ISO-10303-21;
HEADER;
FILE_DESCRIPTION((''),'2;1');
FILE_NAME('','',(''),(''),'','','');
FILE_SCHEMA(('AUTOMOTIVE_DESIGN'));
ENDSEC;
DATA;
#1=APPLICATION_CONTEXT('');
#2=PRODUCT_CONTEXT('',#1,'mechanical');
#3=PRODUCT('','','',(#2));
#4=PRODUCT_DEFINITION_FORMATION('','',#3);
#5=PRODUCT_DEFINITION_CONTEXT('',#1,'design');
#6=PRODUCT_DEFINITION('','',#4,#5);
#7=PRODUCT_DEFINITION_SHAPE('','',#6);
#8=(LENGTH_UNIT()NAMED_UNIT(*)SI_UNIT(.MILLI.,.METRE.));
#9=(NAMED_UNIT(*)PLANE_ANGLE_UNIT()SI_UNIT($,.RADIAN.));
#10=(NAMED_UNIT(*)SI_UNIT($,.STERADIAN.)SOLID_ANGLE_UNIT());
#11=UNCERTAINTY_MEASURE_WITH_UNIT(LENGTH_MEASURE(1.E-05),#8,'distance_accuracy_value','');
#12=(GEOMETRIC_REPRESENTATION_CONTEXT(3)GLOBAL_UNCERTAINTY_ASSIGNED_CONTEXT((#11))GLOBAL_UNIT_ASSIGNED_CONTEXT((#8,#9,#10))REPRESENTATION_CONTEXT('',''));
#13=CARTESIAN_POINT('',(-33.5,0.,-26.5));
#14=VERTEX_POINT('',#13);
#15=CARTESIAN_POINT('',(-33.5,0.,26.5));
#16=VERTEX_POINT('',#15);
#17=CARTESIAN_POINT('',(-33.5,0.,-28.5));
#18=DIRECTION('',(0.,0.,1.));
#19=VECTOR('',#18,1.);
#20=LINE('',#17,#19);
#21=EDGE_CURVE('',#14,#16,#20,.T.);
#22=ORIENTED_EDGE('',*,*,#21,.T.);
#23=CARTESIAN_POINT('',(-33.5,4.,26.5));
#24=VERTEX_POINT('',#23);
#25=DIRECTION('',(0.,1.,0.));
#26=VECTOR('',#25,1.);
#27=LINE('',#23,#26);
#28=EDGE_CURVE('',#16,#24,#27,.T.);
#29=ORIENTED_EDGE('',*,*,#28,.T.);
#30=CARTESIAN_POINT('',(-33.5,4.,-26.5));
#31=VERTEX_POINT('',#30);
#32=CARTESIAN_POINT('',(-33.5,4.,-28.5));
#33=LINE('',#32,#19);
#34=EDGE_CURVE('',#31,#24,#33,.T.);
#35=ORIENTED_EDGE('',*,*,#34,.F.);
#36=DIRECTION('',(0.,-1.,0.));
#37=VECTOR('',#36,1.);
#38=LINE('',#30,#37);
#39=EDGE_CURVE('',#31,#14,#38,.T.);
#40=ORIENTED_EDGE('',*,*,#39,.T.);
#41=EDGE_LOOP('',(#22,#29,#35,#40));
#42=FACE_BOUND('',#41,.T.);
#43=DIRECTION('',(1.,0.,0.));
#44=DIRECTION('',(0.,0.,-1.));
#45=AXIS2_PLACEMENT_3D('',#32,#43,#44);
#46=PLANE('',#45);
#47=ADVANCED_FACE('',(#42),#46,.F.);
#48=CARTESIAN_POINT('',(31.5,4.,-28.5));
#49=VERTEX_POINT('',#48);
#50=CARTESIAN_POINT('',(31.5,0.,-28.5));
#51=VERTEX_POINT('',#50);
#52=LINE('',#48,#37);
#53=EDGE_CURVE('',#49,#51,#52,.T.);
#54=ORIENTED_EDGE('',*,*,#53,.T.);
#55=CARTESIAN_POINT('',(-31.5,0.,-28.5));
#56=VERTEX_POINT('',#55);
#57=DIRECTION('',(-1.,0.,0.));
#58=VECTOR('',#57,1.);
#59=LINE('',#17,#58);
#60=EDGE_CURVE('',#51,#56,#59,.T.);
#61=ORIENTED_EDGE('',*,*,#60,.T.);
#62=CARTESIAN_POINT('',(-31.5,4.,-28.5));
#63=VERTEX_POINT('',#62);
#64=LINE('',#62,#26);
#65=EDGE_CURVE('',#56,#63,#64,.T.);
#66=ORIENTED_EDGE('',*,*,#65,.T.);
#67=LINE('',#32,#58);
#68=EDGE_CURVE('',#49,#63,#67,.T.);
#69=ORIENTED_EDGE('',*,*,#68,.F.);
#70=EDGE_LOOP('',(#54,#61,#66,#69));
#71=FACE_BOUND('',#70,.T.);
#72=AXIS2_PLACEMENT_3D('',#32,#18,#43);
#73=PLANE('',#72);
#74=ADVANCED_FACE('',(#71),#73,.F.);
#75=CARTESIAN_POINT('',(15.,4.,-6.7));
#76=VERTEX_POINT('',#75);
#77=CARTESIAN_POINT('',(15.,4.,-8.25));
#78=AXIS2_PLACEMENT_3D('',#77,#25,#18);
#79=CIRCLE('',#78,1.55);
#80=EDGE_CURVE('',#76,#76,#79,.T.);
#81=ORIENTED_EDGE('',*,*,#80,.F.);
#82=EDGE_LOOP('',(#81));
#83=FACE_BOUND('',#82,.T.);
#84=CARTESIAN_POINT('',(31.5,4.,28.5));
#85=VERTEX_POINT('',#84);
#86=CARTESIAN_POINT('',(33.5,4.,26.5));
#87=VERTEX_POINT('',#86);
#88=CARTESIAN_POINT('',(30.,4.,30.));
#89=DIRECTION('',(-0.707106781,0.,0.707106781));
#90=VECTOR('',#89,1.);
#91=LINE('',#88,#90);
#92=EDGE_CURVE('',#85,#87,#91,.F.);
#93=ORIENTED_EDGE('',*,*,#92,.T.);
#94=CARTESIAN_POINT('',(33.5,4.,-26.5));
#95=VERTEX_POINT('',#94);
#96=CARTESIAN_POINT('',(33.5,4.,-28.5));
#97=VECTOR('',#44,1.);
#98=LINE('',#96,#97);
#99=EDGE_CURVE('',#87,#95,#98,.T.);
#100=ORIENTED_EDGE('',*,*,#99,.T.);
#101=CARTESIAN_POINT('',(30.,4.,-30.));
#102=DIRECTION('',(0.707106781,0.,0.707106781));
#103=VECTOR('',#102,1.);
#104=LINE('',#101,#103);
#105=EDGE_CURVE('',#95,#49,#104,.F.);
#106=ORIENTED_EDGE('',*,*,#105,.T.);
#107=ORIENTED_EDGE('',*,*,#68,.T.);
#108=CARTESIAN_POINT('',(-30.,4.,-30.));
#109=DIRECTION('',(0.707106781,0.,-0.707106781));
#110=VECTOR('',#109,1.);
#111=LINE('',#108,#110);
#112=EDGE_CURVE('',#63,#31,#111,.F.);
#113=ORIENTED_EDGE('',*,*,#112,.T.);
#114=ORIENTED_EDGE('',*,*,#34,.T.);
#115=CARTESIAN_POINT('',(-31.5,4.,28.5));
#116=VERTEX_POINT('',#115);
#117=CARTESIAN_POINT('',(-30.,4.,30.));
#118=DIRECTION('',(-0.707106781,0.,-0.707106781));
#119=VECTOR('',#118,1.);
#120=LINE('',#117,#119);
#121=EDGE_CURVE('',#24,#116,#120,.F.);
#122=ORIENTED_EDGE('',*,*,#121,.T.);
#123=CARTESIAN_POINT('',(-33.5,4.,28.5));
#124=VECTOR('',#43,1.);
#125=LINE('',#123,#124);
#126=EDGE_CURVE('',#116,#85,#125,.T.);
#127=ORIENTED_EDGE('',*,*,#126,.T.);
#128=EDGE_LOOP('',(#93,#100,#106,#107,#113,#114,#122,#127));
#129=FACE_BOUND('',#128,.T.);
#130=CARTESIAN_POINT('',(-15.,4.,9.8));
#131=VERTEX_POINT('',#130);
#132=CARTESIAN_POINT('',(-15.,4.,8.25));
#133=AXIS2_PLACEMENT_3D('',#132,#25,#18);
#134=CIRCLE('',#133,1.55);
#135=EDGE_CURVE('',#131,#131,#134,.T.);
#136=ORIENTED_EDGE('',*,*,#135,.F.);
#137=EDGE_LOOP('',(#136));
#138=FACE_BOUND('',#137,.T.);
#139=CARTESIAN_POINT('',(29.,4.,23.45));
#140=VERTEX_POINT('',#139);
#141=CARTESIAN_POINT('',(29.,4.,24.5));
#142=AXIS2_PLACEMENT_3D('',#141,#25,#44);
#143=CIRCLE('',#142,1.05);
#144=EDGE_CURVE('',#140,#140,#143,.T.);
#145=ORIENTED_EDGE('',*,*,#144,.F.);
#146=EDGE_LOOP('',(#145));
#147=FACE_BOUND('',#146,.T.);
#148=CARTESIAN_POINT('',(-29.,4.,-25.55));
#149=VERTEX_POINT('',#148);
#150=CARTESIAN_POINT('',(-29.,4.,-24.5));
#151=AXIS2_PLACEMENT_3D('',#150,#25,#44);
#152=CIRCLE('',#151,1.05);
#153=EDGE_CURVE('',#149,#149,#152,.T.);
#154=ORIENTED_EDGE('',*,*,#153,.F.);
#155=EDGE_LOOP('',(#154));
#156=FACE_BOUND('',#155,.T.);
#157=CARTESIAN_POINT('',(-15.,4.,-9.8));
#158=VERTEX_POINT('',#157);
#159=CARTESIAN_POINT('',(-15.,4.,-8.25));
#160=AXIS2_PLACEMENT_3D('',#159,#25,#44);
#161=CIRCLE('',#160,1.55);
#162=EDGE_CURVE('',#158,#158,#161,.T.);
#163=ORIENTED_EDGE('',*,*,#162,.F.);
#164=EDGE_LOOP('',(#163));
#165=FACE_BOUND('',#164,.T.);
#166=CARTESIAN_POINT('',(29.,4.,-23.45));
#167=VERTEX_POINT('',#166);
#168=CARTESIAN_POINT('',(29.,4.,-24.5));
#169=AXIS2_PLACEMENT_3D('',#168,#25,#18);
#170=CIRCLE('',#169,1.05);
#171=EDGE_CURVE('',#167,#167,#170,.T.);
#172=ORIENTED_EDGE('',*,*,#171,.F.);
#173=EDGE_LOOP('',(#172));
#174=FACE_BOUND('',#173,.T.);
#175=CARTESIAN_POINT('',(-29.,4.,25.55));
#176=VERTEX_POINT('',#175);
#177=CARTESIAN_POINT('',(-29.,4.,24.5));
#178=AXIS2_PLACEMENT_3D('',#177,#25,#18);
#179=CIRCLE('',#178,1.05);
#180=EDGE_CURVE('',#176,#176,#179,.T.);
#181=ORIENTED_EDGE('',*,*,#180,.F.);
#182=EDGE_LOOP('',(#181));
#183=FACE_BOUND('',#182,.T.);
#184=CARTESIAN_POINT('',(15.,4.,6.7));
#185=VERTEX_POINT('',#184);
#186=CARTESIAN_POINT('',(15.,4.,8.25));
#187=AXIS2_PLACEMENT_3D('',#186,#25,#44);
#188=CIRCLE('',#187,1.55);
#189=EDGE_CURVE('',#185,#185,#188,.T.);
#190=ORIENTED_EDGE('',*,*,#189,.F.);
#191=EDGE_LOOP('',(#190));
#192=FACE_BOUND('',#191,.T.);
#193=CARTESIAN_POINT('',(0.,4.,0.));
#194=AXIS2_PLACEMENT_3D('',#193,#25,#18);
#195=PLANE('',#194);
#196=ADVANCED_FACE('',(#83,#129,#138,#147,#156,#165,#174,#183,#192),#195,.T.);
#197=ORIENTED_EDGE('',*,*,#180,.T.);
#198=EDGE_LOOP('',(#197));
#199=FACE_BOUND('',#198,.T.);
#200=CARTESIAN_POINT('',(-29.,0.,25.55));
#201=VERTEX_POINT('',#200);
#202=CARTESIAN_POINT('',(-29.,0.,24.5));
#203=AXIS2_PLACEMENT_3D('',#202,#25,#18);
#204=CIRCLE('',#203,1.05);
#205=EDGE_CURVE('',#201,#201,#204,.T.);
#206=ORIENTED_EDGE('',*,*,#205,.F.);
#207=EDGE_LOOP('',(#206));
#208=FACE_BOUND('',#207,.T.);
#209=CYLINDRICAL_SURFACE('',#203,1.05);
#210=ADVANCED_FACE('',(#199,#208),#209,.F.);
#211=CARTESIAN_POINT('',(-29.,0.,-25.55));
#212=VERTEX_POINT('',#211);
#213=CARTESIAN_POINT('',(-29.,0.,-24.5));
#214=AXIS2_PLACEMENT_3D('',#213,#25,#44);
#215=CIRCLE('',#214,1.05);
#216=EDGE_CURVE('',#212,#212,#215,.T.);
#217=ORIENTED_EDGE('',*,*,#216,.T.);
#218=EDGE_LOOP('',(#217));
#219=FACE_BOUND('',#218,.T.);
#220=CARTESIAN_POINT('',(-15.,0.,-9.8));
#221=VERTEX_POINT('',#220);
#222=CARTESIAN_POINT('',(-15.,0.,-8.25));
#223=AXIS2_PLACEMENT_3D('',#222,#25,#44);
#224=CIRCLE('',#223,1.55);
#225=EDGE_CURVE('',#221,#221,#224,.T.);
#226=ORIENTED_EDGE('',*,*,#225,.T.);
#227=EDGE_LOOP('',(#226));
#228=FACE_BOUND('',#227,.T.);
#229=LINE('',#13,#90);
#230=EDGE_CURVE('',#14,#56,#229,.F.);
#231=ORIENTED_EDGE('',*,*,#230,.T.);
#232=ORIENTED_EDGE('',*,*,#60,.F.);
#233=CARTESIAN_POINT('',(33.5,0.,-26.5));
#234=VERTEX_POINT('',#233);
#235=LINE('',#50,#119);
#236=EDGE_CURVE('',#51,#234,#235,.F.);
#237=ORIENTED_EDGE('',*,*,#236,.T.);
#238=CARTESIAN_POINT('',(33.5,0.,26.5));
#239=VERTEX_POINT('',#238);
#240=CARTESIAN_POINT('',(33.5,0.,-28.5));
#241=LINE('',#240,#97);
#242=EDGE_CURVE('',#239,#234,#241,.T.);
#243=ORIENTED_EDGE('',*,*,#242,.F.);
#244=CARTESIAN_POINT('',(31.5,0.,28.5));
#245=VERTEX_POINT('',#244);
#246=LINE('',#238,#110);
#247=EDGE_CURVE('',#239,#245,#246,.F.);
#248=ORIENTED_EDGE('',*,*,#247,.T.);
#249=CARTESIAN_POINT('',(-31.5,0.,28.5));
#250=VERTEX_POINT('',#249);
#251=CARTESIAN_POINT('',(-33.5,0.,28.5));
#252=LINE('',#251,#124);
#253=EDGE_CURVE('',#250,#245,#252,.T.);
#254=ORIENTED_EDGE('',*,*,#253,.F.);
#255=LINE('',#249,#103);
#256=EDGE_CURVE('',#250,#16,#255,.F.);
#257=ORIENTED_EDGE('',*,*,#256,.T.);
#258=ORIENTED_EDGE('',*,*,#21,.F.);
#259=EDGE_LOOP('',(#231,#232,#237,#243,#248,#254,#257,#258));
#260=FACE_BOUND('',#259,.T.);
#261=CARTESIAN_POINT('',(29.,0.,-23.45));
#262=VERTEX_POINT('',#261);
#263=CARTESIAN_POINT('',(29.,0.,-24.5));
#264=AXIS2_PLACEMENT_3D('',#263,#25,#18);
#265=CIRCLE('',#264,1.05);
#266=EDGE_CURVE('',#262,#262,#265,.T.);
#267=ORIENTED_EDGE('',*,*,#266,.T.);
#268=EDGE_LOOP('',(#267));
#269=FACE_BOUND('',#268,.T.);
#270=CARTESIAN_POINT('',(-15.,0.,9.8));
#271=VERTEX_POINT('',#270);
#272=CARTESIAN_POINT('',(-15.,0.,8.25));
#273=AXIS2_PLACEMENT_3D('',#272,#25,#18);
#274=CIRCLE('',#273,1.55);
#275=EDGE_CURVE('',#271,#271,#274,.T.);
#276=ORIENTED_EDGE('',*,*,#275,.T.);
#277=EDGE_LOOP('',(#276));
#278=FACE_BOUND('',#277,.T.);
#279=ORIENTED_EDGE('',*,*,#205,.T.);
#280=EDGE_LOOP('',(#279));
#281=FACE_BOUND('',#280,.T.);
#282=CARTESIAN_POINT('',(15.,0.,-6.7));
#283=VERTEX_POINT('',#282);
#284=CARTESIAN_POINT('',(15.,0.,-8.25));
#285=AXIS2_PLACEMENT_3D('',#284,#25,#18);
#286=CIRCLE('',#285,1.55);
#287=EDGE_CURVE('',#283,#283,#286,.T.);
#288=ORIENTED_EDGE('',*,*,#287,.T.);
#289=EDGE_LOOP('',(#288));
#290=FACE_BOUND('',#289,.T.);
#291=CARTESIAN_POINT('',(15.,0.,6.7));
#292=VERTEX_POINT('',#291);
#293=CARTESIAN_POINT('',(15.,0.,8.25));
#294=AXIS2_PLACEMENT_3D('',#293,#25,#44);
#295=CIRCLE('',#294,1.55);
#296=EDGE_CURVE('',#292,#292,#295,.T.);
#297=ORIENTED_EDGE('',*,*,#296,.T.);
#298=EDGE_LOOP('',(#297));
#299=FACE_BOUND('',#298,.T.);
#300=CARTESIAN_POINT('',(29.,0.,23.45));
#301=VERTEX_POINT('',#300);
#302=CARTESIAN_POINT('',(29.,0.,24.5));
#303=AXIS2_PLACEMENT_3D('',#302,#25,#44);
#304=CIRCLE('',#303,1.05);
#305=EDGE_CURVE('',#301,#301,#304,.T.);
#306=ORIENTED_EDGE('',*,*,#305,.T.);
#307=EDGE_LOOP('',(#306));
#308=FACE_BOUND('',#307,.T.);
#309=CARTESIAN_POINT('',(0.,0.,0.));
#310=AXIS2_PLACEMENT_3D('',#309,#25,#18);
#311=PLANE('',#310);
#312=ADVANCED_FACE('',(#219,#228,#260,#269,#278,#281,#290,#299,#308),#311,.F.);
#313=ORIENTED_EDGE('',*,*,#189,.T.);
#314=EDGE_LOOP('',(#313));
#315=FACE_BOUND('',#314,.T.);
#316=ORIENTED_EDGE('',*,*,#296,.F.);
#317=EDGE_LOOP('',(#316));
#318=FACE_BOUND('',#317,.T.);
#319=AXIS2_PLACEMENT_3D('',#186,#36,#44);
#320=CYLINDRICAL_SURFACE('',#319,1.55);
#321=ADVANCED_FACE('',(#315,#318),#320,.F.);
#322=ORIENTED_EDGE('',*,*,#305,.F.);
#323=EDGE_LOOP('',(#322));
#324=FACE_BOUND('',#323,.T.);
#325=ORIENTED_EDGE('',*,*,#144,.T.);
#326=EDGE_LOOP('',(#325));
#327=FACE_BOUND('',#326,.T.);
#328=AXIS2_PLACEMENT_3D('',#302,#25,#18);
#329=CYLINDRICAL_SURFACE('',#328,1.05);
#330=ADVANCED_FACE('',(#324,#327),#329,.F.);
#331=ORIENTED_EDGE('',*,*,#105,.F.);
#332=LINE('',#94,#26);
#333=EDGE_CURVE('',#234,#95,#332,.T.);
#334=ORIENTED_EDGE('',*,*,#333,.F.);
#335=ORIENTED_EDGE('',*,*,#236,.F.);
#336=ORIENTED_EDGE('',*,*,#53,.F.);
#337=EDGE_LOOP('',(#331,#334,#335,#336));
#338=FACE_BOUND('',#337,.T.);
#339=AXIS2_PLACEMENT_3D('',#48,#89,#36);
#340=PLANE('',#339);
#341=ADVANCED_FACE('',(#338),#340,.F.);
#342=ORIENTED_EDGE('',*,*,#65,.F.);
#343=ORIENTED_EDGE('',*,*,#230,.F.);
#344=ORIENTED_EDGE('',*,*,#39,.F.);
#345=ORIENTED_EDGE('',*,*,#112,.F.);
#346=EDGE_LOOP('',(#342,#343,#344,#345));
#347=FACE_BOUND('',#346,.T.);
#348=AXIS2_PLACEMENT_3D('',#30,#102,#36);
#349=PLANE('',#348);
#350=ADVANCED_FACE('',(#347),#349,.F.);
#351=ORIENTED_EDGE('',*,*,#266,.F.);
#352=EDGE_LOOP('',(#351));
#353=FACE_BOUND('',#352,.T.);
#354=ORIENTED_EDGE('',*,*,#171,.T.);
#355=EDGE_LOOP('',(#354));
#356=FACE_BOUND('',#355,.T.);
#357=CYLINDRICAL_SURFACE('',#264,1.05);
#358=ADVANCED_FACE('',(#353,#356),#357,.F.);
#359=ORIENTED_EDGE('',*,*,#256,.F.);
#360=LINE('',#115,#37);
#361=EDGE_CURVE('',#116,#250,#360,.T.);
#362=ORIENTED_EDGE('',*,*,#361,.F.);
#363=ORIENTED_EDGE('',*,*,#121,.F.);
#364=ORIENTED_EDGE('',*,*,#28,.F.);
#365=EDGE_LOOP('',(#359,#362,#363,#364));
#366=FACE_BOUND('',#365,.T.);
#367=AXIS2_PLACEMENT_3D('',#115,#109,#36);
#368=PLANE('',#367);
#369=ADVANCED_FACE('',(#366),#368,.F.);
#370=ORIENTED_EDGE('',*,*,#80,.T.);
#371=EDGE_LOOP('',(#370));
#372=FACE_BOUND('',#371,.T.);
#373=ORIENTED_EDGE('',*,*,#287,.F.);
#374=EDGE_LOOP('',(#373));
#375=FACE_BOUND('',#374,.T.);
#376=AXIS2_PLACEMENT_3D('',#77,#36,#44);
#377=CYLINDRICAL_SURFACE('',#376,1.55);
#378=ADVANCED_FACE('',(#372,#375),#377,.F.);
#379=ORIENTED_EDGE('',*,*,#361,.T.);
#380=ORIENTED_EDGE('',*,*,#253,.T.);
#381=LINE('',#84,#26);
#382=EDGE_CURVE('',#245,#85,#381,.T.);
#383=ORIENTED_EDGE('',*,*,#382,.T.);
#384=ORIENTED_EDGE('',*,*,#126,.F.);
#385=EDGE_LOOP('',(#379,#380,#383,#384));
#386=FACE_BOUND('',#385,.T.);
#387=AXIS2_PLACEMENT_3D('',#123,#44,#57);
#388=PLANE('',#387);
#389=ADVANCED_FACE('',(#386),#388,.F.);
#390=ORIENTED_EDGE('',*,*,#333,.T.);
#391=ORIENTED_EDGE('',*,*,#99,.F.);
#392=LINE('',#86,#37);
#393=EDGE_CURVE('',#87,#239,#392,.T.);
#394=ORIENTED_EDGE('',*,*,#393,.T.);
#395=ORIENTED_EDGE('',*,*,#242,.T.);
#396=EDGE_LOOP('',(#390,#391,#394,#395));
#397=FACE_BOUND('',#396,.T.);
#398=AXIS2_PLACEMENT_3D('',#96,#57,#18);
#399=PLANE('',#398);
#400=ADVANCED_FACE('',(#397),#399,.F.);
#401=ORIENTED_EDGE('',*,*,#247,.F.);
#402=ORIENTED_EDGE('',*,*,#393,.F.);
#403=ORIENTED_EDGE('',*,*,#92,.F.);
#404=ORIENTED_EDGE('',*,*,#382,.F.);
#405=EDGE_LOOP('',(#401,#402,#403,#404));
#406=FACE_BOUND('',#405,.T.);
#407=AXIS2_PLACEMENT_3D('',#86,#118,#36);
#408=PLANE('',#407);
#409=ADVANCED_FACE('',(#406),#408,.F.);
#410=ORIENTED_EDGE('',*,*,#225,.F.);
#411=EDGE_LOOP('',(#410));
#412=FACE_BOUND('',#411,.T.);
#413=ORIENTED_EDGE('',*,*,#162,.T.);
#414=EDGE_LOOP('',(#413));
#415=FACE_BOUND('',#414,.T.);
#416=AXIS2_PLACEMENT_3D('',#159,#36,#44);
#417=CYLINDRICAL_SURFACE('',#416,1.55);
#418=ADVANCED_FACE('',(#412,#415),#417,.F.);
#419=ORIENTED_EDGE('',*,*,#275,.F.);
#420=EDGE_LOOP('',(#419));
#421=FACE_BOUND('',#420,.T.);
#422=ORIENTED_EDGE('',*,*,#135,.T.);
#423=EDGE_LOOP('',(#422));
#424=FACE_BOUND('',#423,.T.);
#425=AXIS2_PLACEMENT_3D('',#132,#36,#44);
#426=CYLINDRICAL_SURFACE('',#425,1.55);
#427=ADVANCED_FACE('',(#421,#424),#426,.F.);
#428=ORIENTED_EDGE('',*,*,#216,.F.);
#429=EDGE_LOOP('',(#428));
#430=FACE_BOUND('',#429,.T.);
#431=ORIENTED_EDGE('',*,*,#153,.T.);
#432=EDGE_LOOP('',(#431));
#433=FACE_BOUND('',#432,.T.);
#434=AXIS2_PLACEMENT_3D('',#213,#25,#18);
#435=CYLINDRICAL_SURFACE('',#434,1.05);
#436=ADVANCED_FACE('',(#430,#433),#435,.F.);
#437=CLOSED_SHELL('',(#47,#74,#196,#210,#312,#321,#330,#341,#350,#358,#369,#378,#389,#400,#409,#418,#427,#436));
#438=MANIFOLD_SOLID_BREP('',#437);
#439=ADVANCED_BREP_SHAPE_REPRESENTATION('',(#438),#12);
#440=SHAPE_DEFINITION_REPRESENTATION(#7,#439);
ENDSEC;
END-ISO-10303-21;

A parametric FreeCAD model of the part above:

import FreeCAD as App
import Part
import Sketcher

V = App.Vector


def edges_at(feature, points):
    """Names of the edges that pass closest to the given points."""
    edges = feature.Shape.Edges
    near = lambda p: min(range(len(edges)), key=lambda i: edges[i].distToShape(Part.Vertex(*p))[0])
    return sorted({f"Edge{near(p) + 1}" for p in points})


def add_polygon(sketch, points):
    """Adds a closed chain of lines whose ends are joined by coincident constraints."""
    first, n = sketch.GeometryCount, len(points)
    for a, b in zip(points, points[1:] + points[:1]):
        sketch.addGeometry(Part.LineSegment(App.Vector(*a, 0), App.Vector(*b, 0)), False)
    for i in range(n):
        sketch.addConstraint(Sketcher.Constraint("Coincident", first + i, 2, first + (i + 1) % n, 1))

doc = App.newDocument("Part")
body = doc.addObject("PartDesign::Body", "Body")

# Sketch on XZ plane
sketch1 = doc.addObject("Sketcher::SketchObject", "Sketch")
body.addObject(sketch1)
sketch1.AttachmentSupport = (doc.XZ_Plane, [""])
sketch1.MapMode = "FlatFace"
add_polygon(sketch1, [(-33.5, -28.5), (-33.5, 28.5), (33.5, 28.5), (33.5, -28.5)])  # lines 0-3
sketch1.addGeometry(Part.Circle(V(-15, 8.25, 0), V(0, 0, 1), 1.55), False)  # 4
sketch1.addGeometry(Part.Circle(V(15, 8.25, 0), V(0, 0, 1), 1.55), False)  # 5
sketch1.addGeometry(Part.Circle(V(-15, -8.25, 0), V(0, 0, 1), 1.55), False)  # 6
sketch1.addGeometry(Part.Circle(V(15, -8.25, 0), V(0, 0, 1), 1.55), False)  # 7
sketch1.addConstraint([
    Sketcher.Constraint("Vertical", 0),
    Sketcher.Constraint("Horizontal", 1),
    Sketcher.Constraint("Vertical", 2),
    Sketcher.Constraint("Horizontal", 3),
    Sketcher.Constraint("Equal", 4, 5),
    Sketcher.Constraint("Equal", 5, 6),
    Sketcher.Constraint("Equal", 6, 7),
    Sketcher.Constraint("Symmetric", 5, 3, 6, 3, -1, 1),
    Sketcher.Constraint("Symmetric", 4, 3, 7, 3, -1, 1),
    Sketcher.Constraint("Symmetric", 0, 2, 2, 2, -1, 1),
    Sketcher.Constraint("Symmetric", 4, 3, 5, 3, -2),
    Sketcher.Constraint("Diameter", 4, 3.1),
    Sketcher.Constraint("DistanceX", 1, 1, 1, 2, 67.0),
    Sketcher.Constraint("DistanceY", 0, 1, 0, 2, 57.0),
    Sketcher.Constraint("DistanceX", 4, 3, -1, 1, 15.0),
    Sketcher.Constraint("DistanceY", 6, 3, 4, 3, 16.5),
])
pad1 = doc.addObject("PartDesign::Pad", "Pad")
body.addObject(pad1)
pad1.Profile = sketch1
pad1.Length = 4
pad1.Reversed = True

# Sketch on XZ plane
sketch2 = doc.addObject("Sketcher::SketchObject", "Sketch001")
body.addObject(sketch2)
sketch2.AttachmentSupport = (doc.XZ_Plane, [""])
sketch2.MapMode = "FlatFace"
sketch2.AttachmentOffset = App.Placement(V(0, 0, -4), App.Rotation())
sketch2.addGeometry([
    Part.Circle(V(29, -24.5, 0), V(0, 0, 1), 1.05),
    Part.Circle(V(-29, -24.5, 0), V(0, 0, 1), 1.05),
    Part.Circle(V(-29, 24.5, 0), V(0, 0, 1), 1.05),
    Part.Circle(V(29, 24.5, 0), V(0, 0, 1), 1.05),
], False)
sketch2.addConstraint([
    Sketcher.Constraint("Equal", 0, 1),
    Sketcher.Constraint("Equal", 1, 2),
    Sketcher.Constraint("Equal", 2, 3),
    Sketcher.Constraint("Symmetric", 0, 3, 2, 3, -1, 1),
    Sketcher.Constraint("Symmetric", 1, 3, 3, 3, -1, 1),
    Sketcher.Constraint("Symmetric", 0, 3, 1, 3, -2),
    Sketcher.Constraint("Diameter", 0, 2.1),
    Sketcher.Constraint("DistanceX", -1, 1, 0, 3, 29.0),
    Sketcher.Constraint("DistanceY", 1, 3, 2, 3, 49.0),
])
pocket1 = doc.addObject("PartDesign::Pocket", "Pocket")
body.addObject(pocket1)
pocket1.Profile = sketch2
pocket1.Type = "ThroughAll"
pocket1.Reversed = True
doc.recompute()

chamfer = doc.addObject("PartDesign::Chamfer", "Chamfer")
body.addObject(chamfer)
chamfer.Base = (pocket1, edges_at(pocket1, [
    (33.5, 2, 28.5),
    (-33.5, 2, 28.5),
    (-33.5, 2, -28.5),
    (33.5, 2, -28.5),
]))
chamfer.Size = 2

doc.recompute()
